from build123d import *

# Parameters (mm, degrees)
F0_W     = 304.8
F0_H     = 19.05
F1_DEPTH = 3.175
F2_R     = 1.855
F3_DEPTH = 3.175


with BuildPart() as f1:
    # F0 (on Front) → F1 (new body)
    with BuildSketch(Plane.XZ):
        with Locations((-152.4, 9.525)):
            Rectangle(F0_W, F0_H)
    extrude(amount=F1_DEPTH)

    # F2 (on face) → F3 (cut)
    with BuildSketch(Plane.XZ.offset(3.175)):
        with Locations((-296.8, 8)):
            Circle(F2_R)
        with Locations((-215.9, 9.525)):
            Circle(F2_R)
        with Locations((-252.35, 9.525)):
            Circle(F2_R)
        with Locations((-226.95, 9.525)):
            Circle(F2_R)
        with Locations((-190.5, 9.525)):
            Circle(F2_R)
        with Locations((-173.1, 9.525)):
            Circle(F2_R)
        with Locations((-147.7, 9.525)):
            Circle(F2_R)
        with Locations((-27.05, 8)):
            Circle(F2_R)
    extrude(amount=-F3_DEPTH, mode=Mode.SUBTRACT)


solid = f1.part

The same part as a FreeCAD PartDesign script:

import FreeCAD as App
import Part
import Sketcher
Q = App.Units.Quantity


def add_polygon(sketch, points):
    """Adds a closed chain of lines whose ends are joined by coincident constraints."""
    first, n = sketch.GeometryCount, len(points)
    for a, b in zip(points, points[1:] + points[:1]):
        sketch.addGeometry(Part.LineSegment(App.Vector(*a, 0), App.Vector(*b, 0)), False)
    for i in range(n):
        sketch.addConstraint(Sketcher.Constraint("Coincident", first + i, 2, first + (i + 1) % n, 1))

doc = App.newDocument("Part")
body = doc.addObject("PartDesign::Body", "Body")

# Sketch on XZ plane
sketch1 = body.newObject("Sketcher::SketchObject", "Sketch")
sketch1.AttachmentSupport = (doc.getObject("XZ_Plane"), [""])
sketch1.MapMode = "FlatFace"
add_polygon(sketch1, [(-305, 19), (-305, 0), (0, 0), (0, 19)])  # lines 0-3
sketch1.addConstraint([
    Sketcher.Constraint("Vertical", 0),
    Sketcher.Constraint("Horizontal", 1),
    Sketcher.Constraint("Vertical", 2),
    Sketcher.Constraint("Horizontal", 3),
    Sketcher.Constraint("Coincident", 1, 2, -1, 1),
    Sketcher.Constraint("DistanceX", 1, 1, 1, 2, Q("12 in")),
    Sketcher.Constraint("DistanceY", 0, 2, 0, 1, Q("0.75 in")),
])
pad1 = body.newObject("PartDesign::Pad", "Pad")
pad1.Profile = sketch1
pad1.Length = Q("0.125 in")

# Sketch on XZ plane
sketch2 = body.newObject("Sketcher::SketchObject", "Sketch001")
sketch2.AttachmentSupport = (doc.getObject("XZ_Plane"), [""])
sketch2.MapMode = "FlatFace"
sketch2.AttachmentOffset = App.Placement(App.Vector(0, 0, 0.125 * 25.4), App.Rotation())
sketch2.addGeometry([
    Part.Circle(App.Vector(-296.8, 8, 0), App.Vector(0, 0, 1), 1.9),  # 0
    Part.Circle(App.Vector(-215.9, 9.5, 0), App.Vector(0, 0, 1), 1.9),  # 1
    Part.Circle(App.Vector(-252.3, 9.5, 0), App.Vector(0, 0, 1), 1.9),  # 2
    Part.Circle(App.Vector(-226.9, 9.5, 0), App.Vector(0, 0, 1), 1.9),  # 3
    Part.Circle(App.Vector(-190.5, 9.5, 0), App.Vector(0, 0, 1), 1.9),  # 4
    Part.Circle(App.Vector(-173.1, 9.5, 0), App.Vector(0, 0, 1), 1.9),  # 5
    Part.Circle(App.Vector(-147.7, 9.5, 0), App.Vector(0, 0, 1), 1.9),  # 6
    Part.Circle(App.Vector(-27.1, 8, 0), App.Vector(0, 0, 1), 1.9),  # 7
], False)
sketch2.addConstraint([
    Sketcher.Constraint("Equal", 0, 1),
    Sketcher.Constraint("Equal", 1, 2),
    Sketcher.Constraint("Equal", 2, 3),
    Sketcher.Constraint("Equal", 3, 4),
    Sketcher.Constraint("Equal", 4, 5),
    Sketcher.Constraint("Equal", 5, 6),
    Sketcher.Constraint("Equal", 6, 7),
    Sketcher.Constraint("Horizontal", 1, 3, 2, 3),
    Sketcher.Constraint("Horizontal", 2, 3, 3, 3),
    Sketcher.Constraint("Horizontal", 3, 3, 4, 3),
    Sketcher.Constraint("Horizontal", 4, 3, 5, 3),
    Sketcher.Constraint("Horizontal", 5, 3, 6, 3),
    Sketcher.Constraint("Horizontal", 0, 3, 7, 3),
    Sketcher.Constraint("DistanceX", 2, 3, 3, 3, Q("1 in")),
    Sketcher.Constraint("DistanceX", 1, 3, 4, 3, Q("1 in")),
    Sketcher.Constraint("DistanceX", 5, 3, 6, 3, Q("1 in")),
    Sketcher.Constraint("DistanceX", 1, 3, -1, 1, Q("8.5 in")),
    Sketcher.Constraint("Diameter", 0, Q("3.71 mm")),
    Sketcher.Constraint("DistanceX", 0, 3, 2, 3, Q("1.75 in")),
    Sketcher.Constraint("DistanceX", 6, 3, 7, 3, Q("4.75 in")),
    Sketcher.Constraint("DistanceY", -1, 1, 1, 3, Q("0.375 in")),
    Sketcher.Constraint("DistanceX", 0, 3, -1, 1, Q("296.8 mm")),
    Sketcher.Constraint("DistanceY", -1, 1, 0, 3, Q("8 mm")),
    Sketcher.Constraint("DistanceX", 5, 3, -1, 1, Q("173.1 mm")),
])
pocket1 = body.newObject("PartDesign::Pocket", "Pocket")
pocket1.Profile = sketch2
pocket1.Length = Q("0.125 in")

doc.recompute()
